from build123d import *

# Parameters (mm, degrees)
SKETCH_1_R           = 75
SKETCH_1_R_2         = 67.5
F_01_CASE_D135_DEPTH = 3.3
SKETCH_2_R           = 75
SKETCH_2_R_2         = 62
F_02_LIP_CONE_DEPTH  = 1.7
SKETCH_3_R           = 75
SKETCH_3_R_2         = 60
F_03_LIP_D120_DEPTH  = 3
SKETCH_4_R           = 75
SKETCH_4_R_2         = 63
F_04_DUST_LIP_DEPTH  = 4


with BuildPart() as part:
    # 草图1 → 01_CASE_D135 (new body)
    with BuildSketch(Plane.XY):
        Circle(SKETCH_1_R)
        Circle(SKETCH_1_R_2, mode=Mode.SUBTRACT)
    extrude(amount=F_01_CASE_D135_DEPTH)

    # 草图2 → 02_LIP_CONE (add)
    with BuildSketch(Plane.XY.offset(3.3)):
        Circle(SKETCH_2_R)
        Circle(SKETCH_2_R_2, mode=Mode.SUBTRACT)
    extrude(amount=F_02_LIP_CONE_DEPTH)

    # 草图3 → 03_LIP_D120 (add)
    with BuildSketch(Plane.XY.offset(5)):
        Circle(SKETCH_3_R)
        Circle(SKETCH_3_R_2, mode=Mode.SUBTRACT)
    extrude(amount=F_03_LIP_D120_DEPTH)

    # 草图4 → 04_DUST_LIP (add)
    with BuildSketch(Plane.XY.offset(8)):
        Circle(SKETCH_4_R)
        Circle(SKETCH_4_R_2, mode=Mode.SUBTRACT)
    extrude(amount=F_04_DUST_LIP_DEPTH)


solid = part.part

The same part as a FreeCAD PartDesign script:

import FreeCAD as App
import Part
import Sketcher

V = App.Vector

doc = App.newDocument("Part")
params = doc.addObject("Spreadsheet::Sheet", "Params")
for row, (alias, value) in enumerate([
    ("sketch1_diameter", "150 mm"),
    ("sketch1_diameter2", "135 mm"),
    ("pad1_length", "3.3 mm"),
    ("sketch2_diameter", "150 mm"),
    ("sketch2_diameter2", "124 mm"),
    ("pad2_length", "1.7 mm"),
    ("sketch3_diameter", "150 mm"),
    ("sketch3_diameter2", "120 mm"),
    ("pad3_length", "3 mm"),
    ("sketch4_diameter", "150 mm"),
    ("sketch4_diameter2", "126 mm"),
    ("pad4_length", "4 mm"),
], start=1):
    params.set(f"A{row}", alias)
    params.set(f"B{row}", "=" + value)
    params.setAlias(f"B{row}", alias)

body = doc.addObject("PartDesign::Body", "Body")

# Sketch on XY plane
sketch1 = body.newObject("Sketcher::SketchObject", "Sketch")
sketch1.AttachmentSupport = (doc.getObject("XY_Plane"), [""])
sketch1.MapMode = "FlatFace"
sketch1.addGeometry(Part.Circle(V(0, 0, 0), V(0, 0, 1), 75), False)
sketch1.addGeometry(Part.Circle(V(0, 0, 0), V(0, 0, 1), 68), False)
sketch1.addConstraint(Sketcher.Constraint("Coincident", 0, 3, -1, 1))
sketch1.addConstraint(Sketcher.Constraint("Coincident", 1, 3, -1, 1))
sketch1.addConstraint(Sketcher.Constraint("Diameter", 0, 150.0))
sketch1.addConstraint(Sketcher.Constraint("Diameter", 1, 135.0))
sketch1.setExpression("Constraints[2]", "Params.sketch1_diameter")
sketch1.setExpression("Constraints[3]", "Params.sketch1_diameter2")
pad1 = body.newObject("PartDesign::Pad", "Pad")
pad1.Profile = sketch1
pad1.setExpression("Length", "Params.pad1_length")

# Sketch on XY plane
sketch2 = body.newObject("Sketcher::SketchObject", "Sketch001")
sketch2.AttachmentSupport = (doc.getObject("XY_Plane"), [""])
sketch2.MapMode = "FlatFace"
sketch2.AttachmentOffset = App.Placement(V(0, 0, 3.3), App.Rotation())
sketch2.addGeometry(Part.Circle(V(0, 0, 0), V(0, 0, 1), 75), False)
sketch2.addGeometry(Part.Circle(V(0, 0, 0), V(0, 0, 1), 62), False)
sketch2.addConstraint(Sketcher.Constraint("Coincident", 0, 3, -1, 1))
sketch2.addConstraint(Sketcher.Constraint("Coincident", 1, 3, -1, 1))
sketch2.addConstraint(Sketcher.Constraint("Diameter", 0, 150.0))
sketch2.addConstraint(Sketcher.Constraint("Diameter", 1, 124.0))
sketch2.setExpression("Constraints[2]", "Params.sketch2_diameter")
sketch2.setExpression("Constraints[3]", "Params.sketch2_diameter2")
pad2 = body.newObject("PartDesign::Pad", "Pad001")
pad2.Profile = sketch2
pad2.setExpression("Length", "Params.pad2_length")

# Sketch on XY plane
sketch3 = body.newObject("Sketcher::SketchObject", "Sketch002")
sketch3.AttachmentSupport = (doc.getObject("XY_Plane"), [""])
sketch3.MapMode = "FlatFace"
sketch3.AttachmentOffset = App.Placement(V(0, 0, 5), App.Rotation())
sketch3.addGeometry(Part.Circle(V(0, 0, 0), V(0, 0, 1), 75), False)
sketch3.addGeometry(Part.Circle(V(0, 0, 0), V(0, 0, 1), 60), False)
sketch3.addConstraint(Sketcher.Constraint("Coincident", 0, 3, -1, 1))
sketch3.addConstraint(Sketcher.Constraint("Coincident", 1, 3, -1, 1))
sketch3.addConstraint(Sketcher.Constraint("Diameter", 0, 150.0))
sketch3.addConstraint(Sketcher.Constraint("Diameter", 1, 120.0))
sketch3.setExpression("Constraints[2]", "Params.sketch3_diameter")
sketch3.setExpression("Constraints[3]", "Params.sketch3_diameter2")
pad3 = body.newObject("PartDesign::Pad", "Pad002")
pad3.Profile = sketch3
pad3.setExpression("Length", "Params.pad3_length")

# Sketch on XY plane
sketch4 = body.newObject("Sketcher::SketchObject", "Sketch003")
sketch4.AttachmentSupport = (doc.getObject("XY_Plane"), [""])
sketch4.MapMode = "FlatFace"
sketch4.AttachmentOffset = App.Placement(V(0, 0, 8), App.Rotation())
sketch4.addGeometry(Part.Circle(V(0, 0, 0), V(0, 0, 1), 75), False)
sketch4.addGeometry(Part.Circle(V(0, 0, 0), V(0, 0, 1), 63), False)
sketch4.addConstraint(Sketcher.Constraint("Coincident", 0, 3, -1, 1))
sketch4.addConstraint(Sketcher.Constraint("Coincident", 1, 3, -1, 1))
sketch4.addConstraint(Sketcher.Constraint("Diameter", 0, 150.0))
sketch4.addConstraint(Sketcher.Constraint("Diameter", 1, 126.0))
sketch4.setExpression("Constraints[2]", "Params.sketch4_diameter")
sketch4.setExpression("Constraints[3]", "Params.sketch4_diameter2")
pad4 = body.newObject("PartDesign::Pad", "Pad003")
pad4.Profile = sketch4
pad4.setExpression("Length", "Params.pad4_length")

doc.recompute()
